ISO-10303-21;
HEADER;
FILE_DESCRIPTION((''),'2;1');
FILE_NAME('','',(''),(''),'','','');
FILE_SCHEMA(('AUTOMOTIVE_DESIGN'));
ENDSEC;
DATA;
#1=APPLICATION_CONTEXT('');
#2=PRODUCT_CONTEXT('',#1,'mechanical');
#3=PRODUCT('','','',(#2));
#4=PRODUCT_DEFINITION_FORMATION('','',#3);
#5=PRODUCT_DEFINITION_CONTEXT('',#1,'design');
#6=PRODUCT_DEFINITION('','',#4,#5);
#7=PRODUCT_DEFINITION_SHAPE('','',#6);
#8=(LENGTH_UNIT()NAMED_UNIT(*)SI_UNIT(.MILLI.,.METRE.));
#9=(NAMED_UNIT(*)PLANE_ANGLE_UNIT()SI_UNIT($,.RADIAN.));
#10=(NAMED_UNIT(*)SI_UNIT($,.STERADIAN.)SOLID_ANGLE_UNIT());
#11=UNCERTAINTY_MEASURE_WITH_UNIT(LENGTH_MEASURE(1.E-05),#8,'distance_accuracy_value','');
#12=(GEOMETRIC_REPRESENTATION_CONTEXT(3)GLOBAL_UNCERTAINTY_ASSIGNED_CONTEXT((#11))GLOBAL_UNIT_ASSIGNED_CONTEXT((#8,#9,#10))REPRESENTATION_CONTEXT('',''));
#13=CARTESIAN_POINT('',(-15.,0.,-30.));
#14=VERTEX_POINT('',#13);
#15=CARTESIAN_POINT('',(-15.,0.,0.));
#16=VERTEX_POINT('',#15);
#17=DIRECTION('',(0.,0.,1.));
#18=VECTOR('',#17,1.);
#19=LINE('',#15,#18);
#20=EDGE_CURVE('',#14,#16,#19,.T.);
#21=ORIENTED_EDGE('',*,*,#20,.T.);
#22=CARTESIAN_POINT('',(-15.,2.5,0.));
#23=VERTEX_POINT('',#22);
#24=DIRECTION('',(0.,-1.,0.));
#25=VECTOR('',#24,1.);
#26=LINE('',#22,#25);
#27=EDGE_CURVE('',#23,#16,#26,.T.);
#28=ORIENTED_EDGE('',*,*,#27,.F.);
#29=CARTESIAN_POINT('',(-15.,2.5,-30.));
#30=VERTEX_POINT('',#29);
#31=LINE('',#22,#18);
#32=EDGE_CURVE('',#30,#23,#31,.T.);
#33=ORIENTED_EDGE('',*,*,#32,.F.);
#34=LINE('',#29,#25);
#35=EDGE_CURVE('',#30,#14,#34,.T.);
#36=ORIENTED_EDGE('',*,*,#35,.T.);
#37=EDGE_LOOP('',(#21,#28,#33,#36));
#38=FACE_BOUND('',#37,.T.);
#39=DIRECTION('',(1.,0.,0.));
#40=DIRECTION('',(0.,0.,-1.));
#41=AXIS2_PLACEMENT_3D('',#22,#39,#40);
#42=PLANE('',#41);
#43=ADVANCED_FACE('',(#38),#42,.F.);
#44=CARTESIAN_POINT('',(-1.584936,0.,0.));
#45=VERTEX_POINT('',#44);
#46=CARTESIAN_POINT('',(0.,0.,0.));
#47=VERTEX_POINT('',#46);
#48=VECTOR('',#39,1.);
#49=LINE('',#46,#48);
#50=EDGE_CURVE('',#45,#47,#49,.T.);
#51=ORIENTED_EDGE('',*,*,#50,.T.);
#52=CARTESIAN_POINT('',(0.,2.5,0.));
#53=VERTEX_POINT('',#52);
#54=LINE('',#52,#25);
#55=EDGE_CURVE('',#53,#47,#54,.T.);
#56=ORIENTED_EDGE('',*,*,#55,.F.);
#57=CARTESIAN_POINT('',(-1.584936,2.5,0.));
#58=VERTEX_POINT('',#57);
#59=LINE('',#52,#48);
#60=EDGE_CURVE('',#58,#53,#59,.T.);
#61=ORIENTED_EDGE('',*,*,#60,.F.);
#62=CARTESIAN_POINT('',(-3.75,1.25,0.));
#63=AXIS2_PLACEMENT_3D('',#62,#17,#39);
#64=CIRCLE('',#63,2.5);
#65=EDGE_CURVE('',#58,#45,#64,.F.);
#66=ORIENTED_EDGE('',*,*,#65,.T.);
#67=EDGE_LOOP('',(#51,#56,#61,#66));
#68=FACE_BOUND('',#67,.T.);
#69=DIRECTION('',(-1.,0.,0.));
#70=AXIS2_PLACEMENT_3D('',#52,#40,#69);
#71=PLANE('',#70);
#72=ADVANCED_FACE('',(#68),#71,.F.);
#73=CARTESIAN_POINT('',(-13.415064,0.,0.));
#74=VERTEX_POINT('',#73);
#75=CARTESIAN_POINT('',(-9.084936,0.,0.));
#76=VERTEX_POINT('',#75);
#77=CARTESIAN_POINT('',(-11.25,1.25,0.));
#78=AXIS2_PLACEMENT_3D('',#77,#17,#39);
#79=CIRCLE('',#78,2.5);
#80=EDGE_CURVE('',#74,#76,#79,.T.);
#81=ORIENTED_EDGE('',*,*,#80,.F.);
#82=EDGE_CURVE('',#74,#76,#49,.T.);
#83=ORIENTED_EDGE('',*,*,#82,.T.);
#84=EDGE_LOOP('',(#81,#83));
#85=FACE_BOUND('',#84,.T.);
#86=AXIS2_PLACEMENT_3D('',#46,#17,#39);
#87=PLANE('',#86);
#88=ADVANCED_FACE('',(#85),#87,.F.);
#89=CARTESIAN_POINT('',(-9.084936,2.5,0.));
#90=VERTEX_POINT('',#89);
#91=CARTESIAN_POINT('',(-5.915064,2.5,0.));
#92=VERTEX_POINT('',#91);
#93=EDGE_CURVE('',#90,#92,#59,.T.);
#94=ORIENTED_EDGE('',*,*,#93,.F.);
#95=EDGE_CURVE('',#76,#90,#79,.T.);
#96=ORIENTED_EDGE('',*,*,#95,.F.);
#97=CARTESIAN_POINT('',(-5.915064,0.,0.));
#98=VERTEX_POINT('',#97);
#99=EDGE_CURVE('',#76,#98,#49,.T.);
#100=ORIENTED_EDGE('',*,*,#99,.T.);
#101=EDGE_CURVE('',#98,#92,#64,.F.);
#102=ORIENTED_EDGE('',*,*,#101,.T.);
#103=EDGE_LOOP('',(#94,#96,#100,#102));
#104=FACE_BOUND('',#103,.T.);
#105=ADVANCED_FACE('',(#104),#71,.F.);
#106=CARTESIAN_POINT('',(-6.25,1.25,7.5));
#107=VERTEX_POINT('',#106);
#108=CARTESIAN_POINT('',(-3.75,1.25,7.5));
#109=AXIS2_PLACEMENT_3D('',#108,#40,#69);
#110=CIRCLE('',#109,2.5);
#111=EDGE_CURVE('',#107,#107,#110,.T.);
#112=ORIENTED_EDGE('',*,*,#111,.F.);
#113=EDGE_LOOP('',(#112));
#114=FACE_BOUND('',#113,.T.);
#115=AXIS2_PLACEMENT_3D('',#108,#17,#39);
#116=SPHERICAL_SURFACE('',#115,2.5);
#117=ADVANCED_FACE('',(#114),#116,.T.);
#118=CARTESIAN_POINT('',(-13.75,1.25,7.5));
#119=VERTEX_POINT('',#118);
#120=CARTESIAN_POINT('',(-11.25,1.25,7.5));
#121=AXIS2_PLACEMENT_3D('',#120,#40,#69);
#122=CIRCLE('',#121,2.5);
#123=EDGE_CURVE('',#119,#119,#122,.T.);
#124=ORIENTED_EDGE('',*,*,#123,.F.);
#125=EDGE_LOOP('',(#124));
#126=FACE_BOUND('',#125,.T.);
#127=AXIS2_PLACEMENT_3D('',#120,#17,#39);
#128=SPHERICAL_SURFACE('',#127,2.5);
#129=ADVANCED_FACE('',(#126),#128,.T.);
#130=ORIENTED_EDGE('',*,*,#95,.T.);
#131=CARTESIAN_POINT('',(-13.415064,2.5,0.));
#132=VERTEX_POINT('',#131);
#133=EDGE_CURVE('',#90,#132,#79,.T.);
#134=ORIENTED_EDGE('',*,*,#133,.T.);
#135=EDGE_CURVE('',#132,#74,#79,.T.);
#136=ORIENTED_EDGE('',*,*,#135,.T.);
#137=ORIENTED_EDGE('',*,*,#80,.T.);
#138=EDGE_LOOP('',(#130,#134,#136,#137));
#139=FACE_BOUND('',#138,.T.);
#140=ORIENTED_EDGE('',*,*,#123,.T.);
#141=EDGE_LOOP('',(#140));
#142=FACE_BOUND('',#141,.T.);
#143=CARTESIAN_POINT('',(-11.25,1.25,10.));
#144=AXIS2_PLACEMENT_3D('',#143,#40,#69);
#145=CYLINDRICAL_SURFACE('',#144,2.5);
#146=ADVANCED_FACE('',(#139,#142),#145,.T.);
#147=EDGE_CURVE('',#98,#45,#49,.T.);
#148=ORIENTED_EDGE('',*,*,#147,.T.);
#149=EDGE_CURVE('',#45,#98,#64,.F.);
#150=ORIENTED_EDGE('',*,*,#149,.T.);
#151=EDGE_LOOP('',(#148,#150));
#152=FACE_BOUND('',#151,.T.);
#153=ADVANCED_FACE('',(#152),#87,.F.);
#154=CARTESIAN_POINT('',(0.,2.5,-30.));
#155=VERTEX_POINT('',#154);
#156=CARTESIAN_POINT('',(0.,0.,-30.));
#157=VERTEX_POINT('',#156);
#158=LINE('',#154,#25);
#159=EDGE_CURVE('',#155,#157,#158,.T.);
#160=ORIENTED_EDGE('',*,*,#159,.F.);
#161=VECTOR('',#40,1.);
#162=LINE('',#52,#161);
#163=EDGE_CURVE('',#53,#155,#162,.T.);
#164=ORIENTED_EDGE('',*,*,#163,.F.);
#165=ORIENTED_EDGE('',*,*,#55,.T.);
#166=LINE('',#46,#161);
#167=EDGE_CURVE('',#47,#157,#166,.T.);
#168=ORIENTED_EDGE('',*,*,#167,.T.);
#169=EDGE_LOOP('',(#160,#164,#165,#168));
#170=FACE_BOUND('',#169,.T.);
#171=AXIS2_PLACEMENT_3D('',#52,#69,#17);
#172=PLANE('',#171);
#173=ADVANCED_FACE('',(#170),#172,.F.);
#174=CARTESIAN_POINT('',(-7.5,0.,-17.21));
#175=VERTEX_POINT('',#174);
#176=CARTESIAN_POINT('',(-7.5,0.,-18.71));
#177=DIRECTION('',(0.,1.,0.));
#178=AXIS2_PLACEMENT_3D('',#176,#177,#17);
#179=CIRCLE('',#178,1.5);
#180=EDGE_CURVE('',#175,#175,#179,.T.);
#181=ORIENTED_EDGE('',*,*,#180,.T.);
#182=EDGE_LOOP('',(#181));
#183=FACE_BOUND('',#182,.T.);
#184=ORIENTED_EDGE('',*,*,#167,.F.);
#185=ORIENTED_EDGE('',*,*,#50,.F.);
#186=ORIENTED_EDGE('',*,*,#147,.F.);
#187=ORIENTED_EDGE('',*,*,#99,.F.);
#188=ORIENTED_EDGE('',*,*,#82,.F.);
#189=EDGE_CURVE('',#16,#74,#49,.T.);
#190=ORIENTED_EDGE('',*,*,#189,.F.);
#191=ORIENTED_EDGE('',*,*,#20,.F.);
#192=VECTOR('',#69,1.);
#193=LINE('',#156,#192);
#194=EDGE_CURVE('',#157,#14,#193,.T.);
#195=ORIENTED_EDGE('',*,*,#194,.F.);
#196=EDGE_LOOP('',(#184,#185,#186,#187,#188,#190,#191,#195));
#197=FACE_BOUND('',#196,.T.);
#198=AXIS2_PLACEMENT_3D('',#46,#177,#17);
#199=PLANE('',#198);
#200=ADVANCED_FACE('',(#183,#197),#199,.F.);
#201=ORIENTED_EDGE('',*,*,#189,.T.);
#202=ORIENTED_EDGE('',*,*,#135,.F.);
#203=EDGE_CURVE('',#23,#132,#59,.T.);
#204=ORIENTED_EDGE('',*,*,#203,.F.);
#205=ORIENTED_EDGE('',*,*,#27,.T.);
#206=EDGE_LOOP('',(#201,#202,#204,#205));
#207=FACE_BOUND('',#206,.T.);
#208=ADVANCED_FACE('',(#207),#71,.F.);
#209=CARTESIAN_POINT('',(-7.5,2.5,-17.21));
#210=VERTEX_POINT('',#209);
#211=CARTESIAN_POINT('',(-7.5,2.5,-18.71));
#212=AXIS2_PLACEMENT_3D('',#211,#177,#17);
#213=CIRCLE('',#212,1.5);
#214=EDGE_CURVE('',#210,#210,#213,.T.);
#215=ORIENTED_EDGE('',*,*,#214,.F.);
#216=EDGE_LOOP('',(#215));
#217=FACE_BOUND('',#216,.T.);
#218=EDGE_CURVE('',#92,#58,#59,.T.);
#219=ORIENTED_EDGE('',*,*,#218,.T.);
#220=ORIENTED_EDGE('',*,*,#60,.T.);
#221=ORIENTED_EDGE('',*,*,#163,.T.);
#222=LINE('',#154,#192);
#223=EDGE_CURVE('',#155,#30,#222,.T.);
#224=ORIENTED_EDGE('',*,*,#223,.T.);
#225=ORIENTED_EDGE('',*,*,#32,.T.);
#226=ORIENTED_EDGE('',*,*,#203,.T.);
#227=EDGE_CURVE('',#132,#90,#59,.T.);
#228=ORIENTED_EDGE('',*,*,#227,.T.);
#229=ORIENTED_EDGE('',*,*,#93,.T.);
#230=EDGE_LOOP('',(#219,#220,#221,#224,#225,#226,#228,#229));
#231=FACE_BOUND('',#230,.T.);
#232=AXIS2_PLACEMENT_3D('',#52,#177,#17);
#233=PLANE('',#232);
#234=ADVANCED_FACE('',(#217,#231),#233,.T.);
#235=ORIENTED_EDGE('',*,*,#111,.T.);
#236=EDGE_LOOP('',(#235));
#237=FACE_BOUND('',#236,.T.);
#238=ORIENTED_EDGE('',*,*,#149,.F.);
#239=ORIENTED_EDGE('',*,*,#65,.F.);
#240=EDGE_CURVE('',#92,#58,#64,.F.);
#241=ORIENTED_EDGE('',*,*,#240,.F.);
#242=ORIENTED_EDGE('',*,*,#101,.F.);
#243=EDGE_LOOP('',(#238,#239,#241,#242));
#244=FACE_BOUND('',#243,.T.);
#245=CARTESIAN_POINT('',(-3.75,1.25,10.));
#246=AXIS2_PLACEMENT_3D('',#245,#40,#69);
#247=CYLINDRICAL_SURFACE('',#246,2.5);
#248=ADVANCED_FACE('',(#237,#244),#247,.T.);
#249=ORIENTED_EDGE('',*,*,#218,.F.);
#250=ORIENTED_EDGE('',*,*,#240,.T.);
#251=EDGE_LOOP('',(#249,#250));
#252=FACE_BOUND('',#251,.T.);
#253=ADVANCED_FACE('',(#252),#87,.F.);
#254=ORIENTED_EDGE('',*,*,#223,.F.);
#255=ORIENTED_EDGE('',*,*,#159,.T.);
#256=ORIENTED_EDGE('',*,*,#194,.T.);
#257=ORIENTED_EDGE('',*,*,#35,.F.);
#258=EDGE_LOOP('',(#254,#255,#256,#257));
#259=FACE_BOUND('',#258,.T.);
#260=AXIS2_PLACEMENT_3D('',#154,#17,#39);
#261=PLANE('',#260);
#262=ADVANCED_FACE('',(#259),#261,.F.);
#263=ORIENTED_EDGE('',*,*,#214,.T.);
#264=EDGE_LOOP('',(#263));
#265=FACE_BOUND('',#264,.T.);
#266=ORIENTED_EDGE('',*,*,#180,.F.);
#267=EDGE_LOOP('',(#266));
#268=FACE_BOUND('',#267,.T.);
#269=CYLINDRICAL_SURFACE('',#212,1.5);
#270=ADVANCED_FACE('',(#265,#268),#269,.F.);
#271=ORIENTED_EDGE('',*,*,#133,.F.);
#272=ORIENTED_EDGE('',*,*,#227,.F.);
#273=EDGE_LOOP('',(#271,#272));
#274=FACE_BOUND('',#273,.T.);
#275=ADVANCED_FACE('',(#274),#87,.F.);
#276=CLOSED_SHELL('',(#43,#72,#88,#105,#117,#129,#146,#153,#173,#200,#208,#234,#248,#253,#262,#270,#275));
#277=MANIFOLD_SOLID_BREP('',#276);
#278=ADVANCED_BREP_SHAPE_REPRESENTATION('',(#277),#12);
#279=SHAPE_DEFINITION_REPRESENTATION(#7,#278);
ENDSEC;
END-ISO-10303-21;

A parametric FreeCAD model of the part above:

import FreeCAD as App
import Part
import Sketcher
from FreeCAD import Vector


def edges_at(feature, points):
    """Names of the edges that pass closest to the given points."""
    edges = feature.Shape.Edges
    near = lambda p: min(range(len(edges)), key=lambda i: edges[i].distToShape(Part.Vertex(*p))[0])
    return sorted({f"Edge{near(p) + 1}" for p in points})


def add_polygon(sketch, points):
    """Adds a closed chain of lines whose ends are joined by coincident constraints."""
    first, n = sketch.GeometryCount, len(points)
    for a, b in zip(points, points[1:] + points[:1]):
        sketch.addGeometry(Part.LineSegment(App.Vector(*a, 0), App.Vector(*b, 0)), False)
    for i in range(n):
        sketch.addConstraint(Sketcher.Constraint("Coincident", first + i, 2, first + (i + 1) % n, 1))

doc = App.newDocument("Part")
body = doc.addObject("PartDesign::Body", "Body")

sketch1 = body.newObject("Sketcher::SketchObject", "Sketch")
sketch1.AttachmentSupport = (doc.getObject("XZ_Plane"), [""])
sketch1.MapMode = "FlatFace"
add_polygon(sketch1, [(-15, -30), (-15, 0), (0, 0), (0, -30)])
sketch1.addConstraint(Sketcher.Constraint("Vertical", 0))
sketch1.addConstraint(Sketcher.Constraint("Horizontal", 1))
sketch1.addConstraint(Sketcher.Constraint("Vertical", 2))
sketch1.addConstraint(Sketcher.Constraint("Horizontal", 3))
sketch1.addConstraint(Sketcher.Constraint("Coincident", 1, 2, -1, 1))
sketch1.addConstraint(Sketcher.Constraint("DistanceX", 1, 1, 1, 2, 15.0))
sketch1.addConstraint(Sketcher.Constraint("DistanceY", 0, 1, 0, 2, 30.0))
pad1 = body.newObject("PartDesign::Pad", "Pad")
pad1.Profile = sketch1
pad1.Length = 2.5
pad1.Reversed = True

sketch2 = body.newObject("Sketcher::SketchObject", "Sketch001")
sketch2.AttachmentSupport = (doc.getObject("XY_Plane"), [""])
sketch2.MapMode = "FlatFace"
sketch2.addGeometry(Part.Circle(Vector(-11.2, 1.2, 0), Vector(0, 0, 1), 2.5), False)
sketch2.addGeometry(Part.Circle(Vector(-3.8, 1.2, 0), Vector(0, 0, 1), 2.5), False)
sketch2.addConstraint(Sketcher.Constraint("Equal", 0, 1))
sketch2.addConstraint(Sketcher.Constraint("Horizontal", 0, 3, 1, 3))
sketch2.addConstraint(Sketcher.Constraint("Diameter", 0, 5.0))
sketch2.addConstraint(Sketcher.Constraint("DistanceX", 0, 3, 1, 3, 7.5))
sketch2.addConstraint(Sketcher.Constraint("DistanceX", 0, 3, -1, 1, 11.25))
sketch2.addConstraint(Sketcher.Constraint("DistanceY", -1, 1, 0, 3, 1.25))
pad2 = body.newObject("PartDesign::Pad", "Pad001")
pad2.Profile = sketch2
pad2.Length = 10
doc.recompute()

fillet = body.newObject("PartDesign::Fillet", "Fillet")
fillet.Base = (pad2, edges_at(pad2, [(-13.75, 1.25, 10)]))
fillet.Radius = 2.5
doc.recompute()

fillet2 = body.newObject("PartDesign::Fillet", "Fillet001")
fillet2.Base = (fillet, edges_at(fillet, [(-1.585, 0, 10)]))
fillet2.Radius = 2.5

sketch3 = body.newObject("Sketcher::SketchObject", "Sketch002")
sketch3.AttachmentSupport = (doc.getObject("XZ_Plane"), [""])
sketch3.MapMode = "FlatFace"
sketch3.AttachmentOffset = App.Placement(Vector(0, 0, -2.5), App.Rotation())
sketch3.addGeometry(Part.Circle(Vector(-7.5, -18.7, 0), Vector(0, 0, 1), 1.5), False)
sketch3.addConstraint(Sketcher.Constraint("Diameter", 0, 3.0))
sketch3.addConstraint(Sketcher.Constraint("DistanceX", 0, 3, -1, 1, 7.5))
sketch3.addConstraint(Sketcher.Constraint("DistanceY", 0, 3, -1, 1, 18.71))
doc.recompute()
hole = body.newObject("PartDesign::Hole", "Hole")
hole.Profile = sketch3
hole.ThreadType = "None"
hole.Diameter = 3
hole.DepthType = "Dimension"
hole.Depth = 12
hole.DrillPoint = "Angled"
hole.DrillPointAngle = 118
hole.Reversed = True

doc.recompute()
